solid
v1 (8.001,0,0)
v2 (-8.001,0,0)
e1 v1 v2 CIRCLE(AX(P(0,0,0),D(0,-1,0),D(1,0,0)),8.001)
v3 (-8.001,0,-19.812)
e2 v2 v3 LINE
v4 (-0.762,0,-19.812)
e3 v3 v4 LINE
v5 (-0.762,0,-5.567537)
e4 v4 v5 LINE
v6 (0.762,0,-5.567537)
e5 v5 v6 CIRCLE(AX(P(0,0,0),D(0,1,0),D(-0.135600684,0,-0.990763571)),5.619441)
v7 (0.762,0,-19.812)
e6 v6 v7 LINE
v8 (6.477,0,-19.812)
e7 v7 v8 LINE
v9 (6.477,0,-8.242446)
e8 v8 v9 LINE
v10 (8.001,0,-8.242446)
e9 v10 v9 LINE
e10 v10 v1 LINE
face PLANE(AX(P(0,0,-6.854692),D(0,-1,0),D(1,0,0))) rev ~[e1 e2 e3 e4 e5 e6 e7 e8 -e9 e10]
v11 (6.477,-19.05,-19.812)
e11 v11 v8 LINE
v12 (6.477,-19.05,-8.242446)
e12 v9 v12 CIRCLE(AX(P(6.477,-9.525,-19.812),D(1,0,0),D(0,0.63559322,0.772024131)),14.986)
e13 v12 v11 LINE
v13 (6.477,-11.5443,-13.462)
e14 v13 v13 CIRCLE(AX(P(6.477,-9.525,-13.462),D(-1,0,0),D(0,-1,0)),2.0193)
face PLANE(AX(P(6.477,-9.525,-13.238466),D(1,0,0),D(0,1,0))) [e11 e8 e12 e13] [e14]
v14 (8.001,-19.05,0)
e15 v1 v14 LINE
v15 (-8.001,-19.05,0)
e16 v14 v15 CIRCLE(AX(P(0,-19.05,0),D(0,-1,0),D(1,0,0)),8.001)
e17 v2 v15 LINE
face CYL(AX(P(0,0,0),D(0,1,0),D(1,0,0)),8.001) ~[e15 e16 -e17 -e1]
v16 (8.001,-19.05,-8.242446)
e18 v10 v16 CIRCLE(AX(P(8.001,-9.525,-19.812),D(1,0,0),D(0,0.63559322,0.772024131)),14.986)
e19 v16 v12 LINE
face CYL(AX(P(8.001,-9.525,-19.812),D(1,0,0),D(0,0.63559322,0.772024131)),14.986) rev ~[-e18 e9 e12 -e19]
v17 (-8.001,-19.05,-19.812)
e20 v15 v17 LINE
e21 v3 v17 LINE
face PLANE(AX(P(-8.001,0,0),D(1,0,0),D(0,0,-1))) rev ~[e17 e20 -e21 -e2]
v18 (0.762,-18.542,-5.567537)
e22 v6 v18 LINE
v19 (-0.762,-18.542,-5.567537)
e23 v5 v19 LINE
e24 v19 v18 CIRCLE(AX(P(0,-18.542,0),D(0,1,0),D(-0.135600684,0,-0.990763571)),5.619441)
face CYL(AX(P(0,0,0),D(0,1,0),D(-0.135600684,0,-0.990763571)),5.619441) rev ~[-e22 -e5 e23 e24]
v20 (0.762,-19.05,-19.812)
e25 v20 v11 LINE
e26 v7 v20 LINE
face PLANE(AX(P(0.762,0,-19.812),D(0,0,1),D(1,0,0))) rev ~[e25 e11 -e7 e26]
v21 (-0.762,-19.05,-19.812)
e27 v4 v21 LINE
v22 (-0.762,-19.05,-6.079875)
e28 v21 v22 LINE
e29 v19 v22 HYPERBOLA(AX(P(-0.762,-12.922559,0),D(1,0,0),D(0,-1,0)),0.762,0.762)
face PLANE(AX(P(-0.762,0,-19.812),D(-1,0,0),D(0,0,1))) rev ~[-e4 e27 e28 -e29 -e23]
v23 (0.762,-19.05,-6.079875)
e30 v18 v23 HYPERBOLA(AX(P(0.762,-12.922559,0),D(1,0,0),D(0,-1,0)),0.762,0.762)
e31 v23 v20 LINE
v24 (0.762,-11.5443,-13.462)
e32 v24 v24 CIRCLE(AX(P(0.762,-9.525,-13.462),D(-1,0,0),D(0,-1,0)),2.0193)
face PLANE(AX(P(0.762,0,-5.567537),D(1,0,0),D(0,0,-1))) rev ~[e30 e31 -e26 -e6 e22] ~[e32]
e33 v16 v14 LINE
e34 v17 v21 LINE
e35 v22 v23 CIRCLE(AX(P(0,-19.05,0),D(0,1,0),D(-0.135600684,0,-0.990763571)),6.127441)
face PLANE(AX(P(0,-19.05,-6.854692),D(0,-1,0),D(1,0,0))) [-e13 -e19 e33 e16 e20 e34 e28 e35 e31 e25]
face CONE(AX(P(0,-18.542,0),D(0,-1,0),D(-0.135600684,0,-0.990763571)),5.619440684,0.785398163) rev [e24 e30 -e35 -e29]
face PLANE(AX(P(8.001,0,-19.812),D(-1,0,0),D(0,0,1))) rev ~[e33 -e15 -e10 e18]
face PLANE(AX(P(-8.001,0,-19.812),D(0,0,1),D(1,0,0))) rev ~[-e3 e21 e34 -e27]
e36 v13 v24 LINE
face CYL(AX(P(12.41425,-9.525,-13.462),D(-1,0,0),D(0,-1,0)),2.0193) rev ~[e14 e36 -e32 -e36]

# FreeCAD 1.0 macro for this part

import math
import FreeCAD as App
import Part
import Sketcher
from FreeCAD import Vector
Q = App.Units.Quantity


def edges_at(feature, points):
    """Names of the edges that pass closest to the given points."""
    edges = feature.Shape.Edges
    near = lambda p: min(range(len(edges)), key=lambda i: edges[i].distToShape(Part.Vertex(*p))[0])
    return sorted({f"Edge{near(p) + 1}" for p in points})

doc = App.newDocument("Part")
params = doc.addObject("Spreadsheet::Sheet", "Params")
for row, (alias, value) in enumerate([
    ("sketch1_radius", "0.315 in"),
    ("sketch1_height", "0.78 in"),
    ("sketch1_width", "0.285 in"),
    ("pad1_length", "0.75 in"),
    ("chamfer_size", "0.02 in"),
    ("sketch2_radius", "0.59 in"),
    ("sketch2_width", "0.75 in"),
    ("pocket1_length", "0.06 in"),
    ("sketch3_diameter", "0.159 in"),
    ("hole_diameter", "0.159 in"),
    ("hole_depth", "5.93725 mm"),
], start=1):
    params.set(f"A{row}", alias)
    params.set(f"B{row}", "=" + value)
    params.setAlias(f"B{row}", alias)

body = doc.addObject("PartDesign::Body", "Body")

# Sketch on XZ plane
sketch1 = doc.addObject("Sketcher::SketchObject", "Sketch")
body.addObject(sketch1)
sketch1.AttachmentSupport = (doc.XZ_Plane, [""])
sketch1.MapMode = "FlatFace"
sketch1.addGeometry([
    Part.LineSegment(Vector(8, -19.8, 0), Vector(8, 0, 0)),  # 0
    Part.ArcOfCircle(Part.Circle(Vector(0, 0, 0), Vector(0, 0, 1), 8), math.radians(0), math.radians(180)),  # 1
    Part.LineSegment(Vector(-8, 0, 0), Vector(-8, -19.8, 0)),  # 2
    Part.LineSegment(Vector(-8, -19.8, 0), Vector(-0.8, -19.8, 0)),  # 3
    Part.LineSegment(Vector(-0.8, -19.8, 0), Vector(-0.8, -5.6, 0)),  # 4
    Part.ArcOfCircle(Part.Circle(Vector(0, 0, 0), Vector(0, 0, 1), 5.6), math.radians(-82), math.radians(262)),  # 5
    Part.LineSegment(Vector(0.8, -5.6, 0), Vector(0.8, -19.8, 0)),  # 6
    Part.LineSegment(Vector(0.8, -19.8, 0), Vector(8, -19.8, 0)),  # 7
], False)
sketch1.addConstraint([
    Sketcher.Constraint("Tangent", 0, 2, 1, 1),
    Sketcher.Constraint("Tangent", 1, 2, 2, 1),
    Sketcher.Constraint("Coincident", 2, 2, 3, 1),
    Sketcher.Constraint("Coincident", 3, 2, 4, 1),
    Sketcher.Constraint("Coincident", 4, 2, 5, 2),
    Sketcher.Constraint("Coincident", 5, 1, 6, 1),
    Sketcher.Constraint("Coincident", 6, 2, 7, 1),
    Sketcher.Constraint("Coincident", 7, 2, 0, 1),
    Sketcher.Constraint("Vertical", 0),
    Sketcher.Constraint("Vertical", 2),
    Sketcher.Constraint("Horizontal", 3),
    Sketcher.Constraint("Vertical", 4),
    Sketcher.Constraint("Vertical", 6),
    Sketcher.Constraint("Horizontal", 7),
    Sketcher.Constraint("Coincident", 1, 3, -1, 1),
    Sketcher.Constraint("Coincident", 5, 3, -1, 1),
    Sketcher.Constraint("Symmetric", 3, 2, 6, 2, -2),
    Sketcher.Constraint("Radius", 1, Q("0.315 in")),
    Sketcher.Constraint("DistanceY", 0, 1, 0, 2, Q("0.78 in")),
    Sketcher.Constraint("DistanceX", 3, 1, 3, 2, Q("0.285 in")),
    Sketcher.Constraint("Radius", 5, Q("5.619441 mm")),
])
sketch1.setExpression("Constraints[17]", "Params.sketch1_radius")
sketch1.setExpression("Constraints[18]", "Params.sketch1_height")
sketch1.setExpression("Constraints[19]", "Params.sketch1_width")
pad1 = doc.addObject("PartDesign::Pad", "Pad")
body.addObject(pad1)
pad1.Profile = sketch1
pad1.setExpression("Length", "Params.pad1_length")
doc.recompute()

chamfer = doc.addObject("PartDesign::Chamfer", "Chamfer")
body.addObject(chamfer)
chamfer.Base = (pad1, edges_at(pad1, [(0, -19.05, 5.619)]))
chamfer.setExpression("Size", "Params.chamfer_size")

# Sketch on YZ plane
sketch2 = doc.addObject("Sketcher::SketchObject", "Sketch001")
body.addObject(sketch2)
sketch2.AttachmentSupport = (doc.YZ_Plane, [""])
sketch2.MapMode = "FlatFace"
sketch2.AttachmentOffset = App.Placement(Vector(0, 0, 0.315 * 25.4), App.Rotation())
sketch2.addGeometry([
    Part.LineSegment(Vector(0, -20, 0), Vector(0, -8, 0)),
    Part.ArcOfCircle(Part.Circle(Vector(-10, -20, 0), Vector(0, 0, 1), 15), math.radians(51), math.radians(129)),
    Part.LineSegment(Vector(-19, -8, 0), Vector(-19, -20, 0)),
    Part.LineSegment(Vector(-19, -20, 0), Vector(0, -20, 0)),
], False)
sketch2.addConstraint([
    Sketcher.Constraint("Coincident", 0, 2, 1, 1),
    Sketcher.Constraint("Coincident", 1, 2, 2, 1),
    Sketcher.Constraint("Coincident", 2, 2, 3, 1),
    Sketcher.Constraint("Coincident", 3, 2, 0, 1),
    Sketcher.Constraint("Vertical", 0),
    Sketcher.Constraint("Vertical", 2),
    Sketcher.Constraint("Horizontal", 3),
    Sketcher.Constraint("PointOnObject", 0, 2, -2),
    Sketcher.Constraint("Horizontal", 0, 2, 1, 2),
    Sketcher.Constraint("Horizontal", 1, 3, 2, 2),
    Sketcher.Constraint("Radius", 1, Q("0.59 in")),
    Sketcher.Constraint("DistanceX", 3, 1, 3, 2, Q("0.75 in")),
    Sketcher.Constraint("DistanceY", 1, 3, -1, 1, Q("0.78 in")),
])
sketch2.setExpression("Constraints[10]", "Params.sketch2_radius")
sketch2.setExpression("Constraints[11]", "Params.sketch2_width")
pocket1 = doc.addObject("PartDesign::Pocket", "Pocket")
body.addObject(pocket1)
pocket1.Profile = sketch2
pocket1.setExpression("Length", "Params.pocket1_length")

# Sketch on YZ plane
sketch3 = doc.addObject("Sketcher::SketchObject", "Sketch002")
body.addObject(sketch3)
sketch3.AttachmentSupport = (doc.YZ_Plane, [""])
sketch3.MapMode = "FlatFace"
sketch3.AttachmentOffset = App.Placement(Vector(0, 0, 0.255 * 25.4), App.Rotation())
sketch3.addGeometry(Part.Circle(Vector(-9.5, -13.5, 0), Vector(0, 0, 1), 2), False)
sketch3.addConstraint([
    Sketcher.Constraint("Diameter", 0, Q("0.159 in")),
    Sketcher.Constraint("DistanceY", 0, 3, -1, 1, Q("0.53 in")),
    Sketcher.Constraint("DistanceX", 0, 3, -1, 1, Q("0.375 in")),
])
sketch3.setExpression("Constraints[0]", "Params.sketch3_diameter")
doc.recompute()
hole = doc.addObject("PartDesign::Hole", "Hole")
body.addObject(hole)
hole.Profile = sketch3
hole.ThreadType = "None"
hole.setExpression("Diameter", "Params.hole_diameter")
hole.DepthType = "Dimension"
hole.setExpression("Depth", "Params.hole_depth")
hole.DrillPoint = "Angled"
hole.DrillPointAngle = 118

doc.recompute()
